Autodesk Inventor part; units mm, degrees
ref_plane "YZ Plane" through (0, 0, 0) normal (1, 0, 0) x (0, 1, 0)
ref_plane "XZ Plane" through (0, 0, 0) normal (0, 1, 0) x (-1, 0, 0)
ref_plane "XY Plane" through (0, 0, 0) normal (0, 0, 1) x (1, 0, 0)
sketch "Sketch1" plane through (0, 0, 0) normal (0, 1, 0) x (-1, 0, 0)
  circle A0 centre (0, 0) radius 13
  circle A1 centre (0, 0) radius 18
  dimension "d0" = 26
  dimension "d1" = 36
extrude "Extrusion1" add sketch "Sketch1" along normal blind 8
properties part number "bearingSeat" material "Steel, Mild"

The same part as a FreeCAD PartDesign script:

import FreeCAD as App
import Part
import Sketcher
Q = App.Units.Quantity

doc = App.newDocument("Part")
body = doc.addObject("PartDesign::Body", "Body")

# Sketch on XZ plane
sketch1 = body.newObject("Sketcher::SketchObject", "Sketch")
sketch1.AttachmentSupport = (doc.getObject("XZ_Plane"), [""])
sketch1.MapMode = "FlatFace"
sketch1.addGeometry([
    Part.Circle(App.Vector(0, 0, 0), App.Vector(0, 0, 1), 18),
    Part.Circle(App.Vector(0, 0, 0), App.Vector(0, 0, 1), 13),
], False)
sketch1.addConstraint([
    Sketcher.Constraint("Coincident", 0, 3, -1, 1),
    Sketcher.Constraint("Coincident", 1, 3, -1, 1),
    Sketcher.Constraint("Diameter", 0, Q("36 mm")),
    Sketcher.Constraint("Diameter", 1, Q("26 mm")),
])
pad1 = body.newObject("PartDesign::Pad", "Pad")
pad1.Profile = sketch1
pad1.Length = 8
pad1.Reversed = True

doc.recompute()
